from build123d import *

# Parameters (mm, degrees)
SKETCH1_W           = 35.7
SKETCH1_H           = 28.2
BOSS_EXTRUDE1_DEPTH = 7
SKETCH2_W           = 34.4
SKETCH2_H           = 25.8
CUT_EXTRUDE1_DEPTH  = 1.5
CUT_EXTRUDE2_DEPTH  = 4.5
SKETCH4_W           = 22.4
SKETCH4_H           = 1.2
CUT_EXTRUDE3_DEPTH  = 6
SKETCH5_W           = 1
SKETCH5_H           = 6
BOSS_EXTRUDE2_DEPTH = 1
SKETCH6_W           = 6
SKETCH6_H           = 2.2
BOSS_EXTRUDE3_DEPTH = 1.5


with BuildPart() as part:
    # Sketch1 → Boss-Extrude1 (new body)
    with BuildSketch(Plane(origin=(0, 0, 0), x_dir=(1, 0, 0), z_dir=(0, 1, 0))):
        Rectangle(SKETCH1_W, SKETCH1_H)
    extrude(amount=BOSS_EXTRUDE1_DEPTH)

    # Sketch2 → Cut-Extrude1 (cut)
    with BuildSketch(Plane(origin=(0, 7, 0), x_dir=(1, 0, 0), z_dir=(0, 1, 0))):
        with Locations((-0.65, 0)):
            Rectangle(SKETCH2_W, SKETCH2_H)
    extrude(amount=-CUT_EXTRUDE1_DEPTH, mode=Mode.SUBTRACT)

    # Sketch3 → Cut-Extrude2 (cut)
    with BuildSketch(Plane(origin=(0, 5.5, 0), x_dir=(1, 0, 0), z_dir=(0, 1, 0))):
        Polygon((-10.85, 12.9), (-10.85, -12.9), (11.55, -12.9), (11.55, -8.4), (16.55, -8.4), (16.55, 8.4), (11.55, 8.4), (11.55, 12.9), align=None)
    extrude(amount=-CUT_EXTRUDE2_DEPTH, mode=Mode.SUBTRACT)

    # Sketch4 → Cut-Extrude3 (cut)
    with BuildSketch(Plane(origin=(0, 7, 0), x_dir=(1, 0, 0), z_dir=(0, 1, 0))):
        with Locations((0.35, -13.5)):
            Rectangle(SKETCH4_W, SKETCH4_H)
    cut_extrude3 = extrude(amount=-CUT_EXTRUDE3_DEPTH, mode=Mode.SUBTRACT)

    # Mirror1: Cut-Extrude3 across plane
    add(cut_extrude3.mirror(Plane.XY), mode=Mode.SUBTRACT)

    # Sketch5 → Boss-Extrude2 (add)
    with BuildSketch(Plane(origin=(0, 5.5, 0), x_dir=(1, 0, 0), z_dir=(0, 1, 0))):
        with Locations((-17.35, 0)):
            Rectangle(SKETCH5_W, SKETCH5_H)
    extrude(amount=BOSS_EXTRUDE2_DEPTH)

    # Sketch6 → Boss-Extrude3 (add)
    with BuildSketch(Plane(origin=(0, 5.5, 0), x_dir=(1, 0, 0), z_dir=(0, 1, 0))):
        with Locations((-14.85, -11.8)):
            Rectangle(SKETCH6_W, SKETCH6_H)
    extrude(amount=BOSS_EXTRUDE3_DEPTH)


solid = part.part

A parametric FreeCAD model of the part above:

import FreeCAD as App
import Part
import Sketcher
from FreeCAD import Vector

doc = App.newDocument("Part")
body = doc.addObject("PartDesign::Body", "Body")

sketch1 = body.newObject("Sketcher::SketchObject", "Sketch")
sketch1.AttachmentSupport = (doc.getObject("XZ_Plane"), [""])
sketch1.MapMode = "FlatFace"
sketch1.addGeometry([
    Part.LineSegment(Vector(-18, -14, 0), Vector(-18, 14, 0)),
    Part.LineSegment(Vector(-18, 14, 0), Vector(18, 14, 0)),
    Part.LineSegment(Vector(18, 14, 0), Vector(18, -14, 0)),
    Part.LineSegment(Vector(18, -14, 0), Vector(-18, -14, 0)),
], False)
sketch1.addConstraint([
    Sketcher.Constraint("Coincident", 0, 2, 1, 1),
    Sketcher.Constraint("Coincident", 1, 2, 2, 1),
    Sketcher.Constraint("Coincident", 2, 2, 3, 1),
    Sketcher.Constraint("Coincident", 3, 2, 0, 1),
    Sketcher.Constraint("Vertical", 0),
    Sketcher.Constraint("Horizontal", 1),
    Sketcher.Constraint("Vertical", 2),
    Sketcher.Constraint("Horizontal", 3),
    Sketcher.Constraint("Symmetric", 0, 2, 2, 2, -1, 1),
    Sketcher.Constraint("DistanceX", 1, 1, 1, 2, 35.7),
    Sketcher.Constraint("DistanceY", 0, 1, 0, 2, 28.2),
])
pad1 = body.newObject("PartDesign::Pad", "Pad")
pad1.Profile = sketch1
pad1.Length = 7
pad1.Reversed = True

sketch2 = body.newObject("Sketcher::SketchObject", "Sketch001")
sketch2.AttachmentSupport = (doc.getObject("XZ_Plane"), [""])
sketch2.MapMode = "FlatFace"
sketch2.AttachmentOffset = App.Placement(Vector(0, 0, -7), App.Rotation())
sketch2.addGeometry([
    Part.LineSegment(Vector(-18, -13, 0), Vector(-18, 13, 0)),
    Part.LineSegment(Vector(-18, 13, 0), Vector(17, 13, 0)),
    Part.LineSegment(Vector(17, 13, 0), Vector(17, -13, 0)),
    Part.LineSegment(Vector(17, -13, 0), Vector(-18, -13, 0)),
], False)
sketch2.addConstraint([
    Sketcher.Constraint("Coincident", 0, 2, 1, 1),
    Sketcher.Constraint("Coincident", 1, 2, 2, 1),
    Sketcher.Constraint("Coincident", 2, 2, 3, 1),
    Sketcher.Constraint("Coincident", 3, 2, 0, 1),
    Sketcher.Constraint("Vertical", 0),
    Sketcher.Constraint("Horizontal", 1),
    Sketcher.Constraint("Vertical", 2),
    Sketcher.Constraint("Horizontal", 3),
    Sketcher.Constraint("DistanceX", 1, 1, 1, 2, 34.4),
    Sketcher.Constraint("DistanceY", 0, 1, 0, 2, 25.8),
    Sketcher.Constraint("DistanceY", -1, 1, 0, 2, 12.9),
    Sketcher.Constraint("DistanceX", 0, 2, -1, 1, 17.85),
])
pocket1 = body.newObject("PartDesign::Pocket", "Pocket")
pocket1.Profile = sketch2
pocket1.Length = 1.5
pocket1.Reversed = True

sketch3 = body.newObject("Sketcher::SketchObject", "Sketch002")
sketch3.AttachmentSupport = (doc.getObject("XZ_Plane"), [""])
sketch3.MapMode = "FlatFace"
sketch3.AttachmentOffset = App.Placement(Vector(0, 0, -5.5), App.Rotation())
sketch3.addGeometry([
    Part.LineSegment(Vector(-10.8, -12.9, 0), Vector(-10.8, 12.9, 0)),
    Part.LineSegment(Vector(-10.8, 12.9, 0), Vector(11.6, 12.9, 0)),
    Part.LineSegment(Vector(11.6, 12.9, 0), Vector(11.6, 8.4, 0)),
    Part.LineSegment(Vector(11.6, 8.4, 0), Vector(16.6, 8.4, 0)),
    Part.LineSegment(Vector(16.6, 8.4, 0), Vector(16.6, -8.4, 0)),
    Part.LineSegment(Vector(16.6, -8.4, 0), Vector(11.6, -8.4, 0)),
    Part.LineSegment(Vector(11.6, -8.4, 0), Vector(11.6, -12.9, 0)),
    Part.LineSegment(Vector(11.6, -12.9, 0), Vector(-10.8, -12.9, 0)),
], False)
sketch3.addConstraint([
    Sketcher.Constraint("Coincident", 0, 2, 1, 1),
    Sketcher.Constraint("Coincident", 1, 2, 2, 1),
    Sketcher.Constraint("Coincident", 2, 2, 3, 1),
    Sketcher.Constraint("Coincident", 3, 2, 4, 1),
    Sketcher.Constraint("Coincident", 4, 2, 5, 1),
    Sketcher.Constraint("Coincident", 5, 2, 6, 1),
    Sketcher.Constraint("Coincident", 6, 2, 7, 1),
    Sketcher.Constraint("Coincident", 7, 2, 0, 1),
    Sketcher.Constraint("Vertical", 0),
    Sketcher.Constraint("Horizontal", 1),
    Sketcher.Constraint("Vertical", 2),
    Sketcher.Constraint("Horizontal", 3),
    Sketcher.Constraint("Vertical", 4),
    Sketcher.Constraint("Horizontal", 5),
    Sketcher.Constraint("Vertical", 6),
    Sketcher.Constraint("Horizontal", 7),
    Sketcher.Constraint("Symmetric", 2, 2, 5, 2, -1),
    Sketcher.Constraint("Equal", 2, 6),
    Sketcher.Constraint("DistanceX", 3, 1, 3, 2, 5.0),
    Sketcher.Constraint("DistanceX", 1, 1, 1, 2, 22.4),
    Sketcher.Constraint("DistanceY", 0, 1, 0, 2, 25.8),
    Sketcher.Constraint("DistanceY", 2, 2, 2, 1, 4.5),
    Sketcher.Constraint("DistanceX", 0, 2, -1, 1, 10.85),
])
pocket2 = body.newObject("PartDesign::Pocket", "Pocket001")
pocket2.Profile = sketch3
pocket2.Length = 4.5
pocket2.Reversed = True

sketch4 = body.newObject("Sketcher::SketchObject", "Sketch003")
sketch4.AttachmentSupport = (doc.getObject("XZ_Plane"), [""])
sketch4.MapMode = "FlatFace"
sketch4.AttachmentOffset = App.Placement(Vector(0, 0, -7), App.Rotation())
sketch4.addGeometry([
    Part.LineSegment(Vector(-10.8, 12.9, 0), Vector(-10.8, 14.1, 0)),
    Part.LineSegment(Vector(-10.8, 14.1, 0), Vector(11.6, 14.1, 0)),
    Part.LineSegment(Vector(11.6, 14.1, 0), Vector(11.6, 12.9, 0)),
    Part.LineSegment(Vector(11.6, 12.9, 0), Vector(-10.8, 12.9, 0)),
], False)
sketch4.addConstraint([
    Sketcher.Constraint("Coincident", 0, 2, 1, 1),
    Sketcher.Constraint("Coincident", 1, 2, 2, 1),
    Sketcher.Constraint("Coincident", 2, 2, 3, 1),
    Sketcher.Constraint("Coincident", 3, 2, 0, 1),
    Sketcher.Constraint("Vertical", 0),
    Sketcher.Constraint("Horizontal", 1),
    Sketcher.Constraint("Vertical", 2),
    Sketcher.Constraint("Horizontal", 3),
    Sketcher.Constraint("DistanceX", 1, 1, 1, 2, 22.4),
    Sketcher.Constraint("DistanceY", 0, 1, 0, 2, 1.2),
    Sketcher.Constraint("DistanceY", -1, 1, 0, 2, 14.1),
    Sketcher.Constraint("DistanceX", 0, 2, -1, 1, 10.85),
])
pocket3 = body.newObject("PartDesign::Pocket", "Pocket002")
pocket3.Profile = sketch4
pocket3.Length = 6
pocket3.Reversed = True
doc.recompute()

mirrored = body.newObject("PartDesign::Mirrored", "Mirrored")
mirrored.Originals = [pocket3]
mirrored.MirrorPlane = (doc.getObject("XY_Plane"), [""])
body.Tip = mirrored

sketch5 = body.newObject("Sketcher::SketchObject", "Sketch004")
sketch5.AttachmentSupport = (doc.getObject("XZ_Plane"), [""])
sketch5.MapMode = "FlatFace"
sketch5.AttachmentOffset = App.Placement(Vector(0, 0, -5.5), App.Rotation())
sketch5.addGeometry([
    Part.LineSegment(Vector(-17.9, -3, 0), Vector(-17.9, 3, 0)),
    Part.LineSegment(Vector(-17.9, 3, 0), Vector(-16.9, 3, 0)),
    Part.LineSegment(Vector(-16.9, 3, 0), Vector(-16.9, -3, 0)),
    Part.LineSegment(Vector(-16.9, -3, 0), Vector(-17.9, -3, 0)),
], False)
sketch5.addConstraint([
    Sketcher.Constraint("Coincident", 0, 2, 1, 1),
    Sketcher.Constraint("Coincident", 1, 2, 2, 1),
    Sketcher.Constraint("Coincident", 2, 2, 3, 1),
    Sketcher.Constraint("Coincident", 3, 2, 0, 1),
    Sketcher.Constraint("Vertical", 0),
    Sketcher.Constraint("Horizontal", 1),
    Sketcher.Constraint("Vertical", 2),
    Sketcher.Constraint("Horizontal", 3),
    Sketcher.Constraint("DistanceX", 1, 1, 1, 2, 1.0),
    Sketcher.Constraint("DistanceY", 0, 1, 0, 2, 6.0),
    Sketcher.Constraint("DistanceY", -1, 1, 0, 2, 3.0),
    Sketcher.Constraint("DistanceX", 0, 2, -1, 1, 17.85),
])
pad2 = body.newObject("PartDesign::Pad", "Pad001")
pad2.Profile = sketch5
pad2.Length = 1
pad2.Reversed = True

sketch6 = body.newObject("Sketcher::SketchObject", "Sketch005")
sketch6.AttachmentSupport = (doc.getObject("XZ_Plane"), [""])
sketch6.MapMode = "FlatFace"
sketch6.AttachmentOffset = App.Placement(Vector(0, 0, -5.5), App.Rotation())
sketch6.addGeometry([
    Part.LineSegment(Vector(-17.9, 10.7, 0), Vector(-17.9, 12.9, 0)),
    Part.LineSegment(Vector(-17.9, 12.9, 0), Vector(-11.8, 12.9, 0)),
    Part.LineSegment(Vector(-11.8, 12.9, 0), Vector(-11.8, 10.7, 0)),
    Part.LineSegment(Vector(-11.8, 10.7, 0), Vector(-17.9, 10.7, 0)),
], False)
sketch6.addConstraint([
    Sketcher.Constraint("Coincident", 0, 2, 1, 1),
    Sketcher.Constraint("Coincident", 1, 2, 2, 1),
    Sketcher.Constraint("Coincident", 2, 2, 3, 1),
    Sketcher.Constraint("Coincident", 3, 2, 0, 1),
    Sketcher.Constraint("Vertical", 0),
    Sketcher.Constraint("Horizontal", 1),
    Sketcher.Constraint("Vertical", 2),
    Sketcher.Constraint("Horizontal", 3),
    Sketcher.Constraint("DistanceX", 1, 1, 1, 2, 6.0),
    Sketcher.Constraint("DistanceY", 0, 1, 0, 2, 2.2),
    Sketcher.Constraint("DistanceY", -1, 1, 0, 2, 12.9),
    Sketcher.Constraint("DistanceX", 0, 2, -1, 1, 17.85),
])
pad3 = body.newObject("PartDesign::Pad", "Pad002")
pad3.Profile = sketch6
pad3.Length = 1.5
pad3.Reversed = True

doc.recompute()
